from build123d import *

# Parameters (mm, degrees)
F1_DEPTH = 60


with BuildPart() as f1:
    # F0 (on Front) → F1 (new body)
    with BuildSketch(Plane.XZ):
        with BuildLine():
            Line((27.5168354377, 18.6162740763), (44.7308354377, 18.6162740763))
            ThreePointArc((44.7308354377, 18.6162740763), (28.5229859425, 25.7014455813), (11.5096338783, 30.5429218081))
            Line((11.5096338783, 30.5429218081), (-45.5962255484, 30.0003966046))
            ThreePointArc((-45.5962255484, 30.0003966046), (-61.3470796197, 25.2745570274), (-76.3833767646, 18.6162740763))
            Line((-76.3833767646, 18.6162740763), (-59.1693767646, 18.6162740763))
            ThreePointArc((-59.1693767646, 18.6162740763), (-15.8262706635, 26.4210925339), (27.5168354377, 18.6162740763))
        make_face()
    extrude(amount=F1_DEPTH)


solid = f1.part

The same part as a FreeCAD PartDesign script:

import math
import FreeCAD as App
import Part
import Sketcher
from FreeCAD import Vector
Q = App.Units.Quantity

doc = App.newDocument("Part")
body = doc.addObject("PartDesign::Body", "Body")

sketch1 = body.newObject("Sketcher::SketchObject", "Sketch")
sketch1.AttachmentSupport = (doc.getObject("XZ_Plane"), [""])
sketch1.MapMode = "FlatFace"
sketch1.addGeometry(Part.LineSegment(Vector(28, 19, 0), Vector(45, 19, 0)), False)
sketch1.addGeometry(Part.ArcOfCircle(Part.Circle(Vector(-16, -98, 0), Vector(0, 0, 1), 131), math.radians(62.52), math.radians(77.98)), False)
sketch1.addGeometry(Part.LineSegment(Vector(12, 31, 0), Vector(-46, 30, 0)), False)
sketch1.addGeometry(Part.ArcOfCircle(Part.Circle(Vector(-16, -98, 0), Vector(0, 0, 1), 131), math.radians(103.11), math.radians(117.48)), False)
sketch1.addGeometry(Part.LineSegment(Vector(-76, 19, 0), Vector(-59, 19, 0)), False)
sketch1.addGeometry(Part.ArcOfCircle(Part.Circle(Vector(-16, -98, 0), Vector(0, 0, 1), 124), math.radians(70), math.radians(110)), False)
sketch1.addConstraint(Sketcher.Constraint("Coincident", 0, 2, 1, 1))
sketch1.addConstraint(Sketcher.Constraint("Coincident", 1, 2, 2, 1))
sketch1.addConstraint(Sketcher.Constraint("Coincident", 2, 2, 3, 1))
sketch1.addConstraint(Sketcher.Constraint("Coincident", 3, 2, 4, 1))
sketch1.addConstraint(Sketcher.Constraint("Coincident", 4, 2, 5, 2))
sketch1.addConstraint(Sketcher.Constraint("Coincident", 5, 1, 0, 1))
sketch1.addConstraint(Sketcher.Constraint("Horizontal", 0))
sketch1.addConstraint(Sketcher.Constraint("Horizontal", 4))
sketch1.addConstraint(Sketcher.Constraint("Coincident", 3, 3, 1, 3))
sketch1.addConstraint(Sketcher.Constraint("Coincident", 5, 3, 1, 3))
sketch1.addConstraint(Sketcher.Constraint("Equal", 1, 3))
sketch1.addConstraint(Sketcher.Constraint("Horizontal", 0, 2, 3, 2))
sketch1.addConstraint(Sketcher.Constraint("DistanceX", 0, 1, 0, 2, Q("17.214 mm")))
sketch1.addConstraint(Sketcher.Constraint("Radius", 1, Q("131.252732 mm")))
sketch1.addConstraint(Sketcher.Constraint("Radius", 5, Q("124.252732 mm")))
sketch1.addConstraint(Sketcher.Constraint("DistanceX", 1, 2, 0, 2, Q("33.221202 mm")))
sketch1.addConstraint(Sketcher.Constraint("DistanceX", 1, 3, -1, 1, Q("15.826271 mm")))
sketch1.addConstraint(Sketcher.Constraint("DistanceY", 1, 3, -1, 1, Q("97.83164 mm")))
sketch1.addConstraint(Sketcher.Constraint("DistanceX", 2, 2, 1, 2, Q("57.105859 mm")))
pad1 = body.newObject("PartDesign::Pad", "Pad")
pad1.Profile = sketch1
pad1.Length = 60

doc.recompute()
